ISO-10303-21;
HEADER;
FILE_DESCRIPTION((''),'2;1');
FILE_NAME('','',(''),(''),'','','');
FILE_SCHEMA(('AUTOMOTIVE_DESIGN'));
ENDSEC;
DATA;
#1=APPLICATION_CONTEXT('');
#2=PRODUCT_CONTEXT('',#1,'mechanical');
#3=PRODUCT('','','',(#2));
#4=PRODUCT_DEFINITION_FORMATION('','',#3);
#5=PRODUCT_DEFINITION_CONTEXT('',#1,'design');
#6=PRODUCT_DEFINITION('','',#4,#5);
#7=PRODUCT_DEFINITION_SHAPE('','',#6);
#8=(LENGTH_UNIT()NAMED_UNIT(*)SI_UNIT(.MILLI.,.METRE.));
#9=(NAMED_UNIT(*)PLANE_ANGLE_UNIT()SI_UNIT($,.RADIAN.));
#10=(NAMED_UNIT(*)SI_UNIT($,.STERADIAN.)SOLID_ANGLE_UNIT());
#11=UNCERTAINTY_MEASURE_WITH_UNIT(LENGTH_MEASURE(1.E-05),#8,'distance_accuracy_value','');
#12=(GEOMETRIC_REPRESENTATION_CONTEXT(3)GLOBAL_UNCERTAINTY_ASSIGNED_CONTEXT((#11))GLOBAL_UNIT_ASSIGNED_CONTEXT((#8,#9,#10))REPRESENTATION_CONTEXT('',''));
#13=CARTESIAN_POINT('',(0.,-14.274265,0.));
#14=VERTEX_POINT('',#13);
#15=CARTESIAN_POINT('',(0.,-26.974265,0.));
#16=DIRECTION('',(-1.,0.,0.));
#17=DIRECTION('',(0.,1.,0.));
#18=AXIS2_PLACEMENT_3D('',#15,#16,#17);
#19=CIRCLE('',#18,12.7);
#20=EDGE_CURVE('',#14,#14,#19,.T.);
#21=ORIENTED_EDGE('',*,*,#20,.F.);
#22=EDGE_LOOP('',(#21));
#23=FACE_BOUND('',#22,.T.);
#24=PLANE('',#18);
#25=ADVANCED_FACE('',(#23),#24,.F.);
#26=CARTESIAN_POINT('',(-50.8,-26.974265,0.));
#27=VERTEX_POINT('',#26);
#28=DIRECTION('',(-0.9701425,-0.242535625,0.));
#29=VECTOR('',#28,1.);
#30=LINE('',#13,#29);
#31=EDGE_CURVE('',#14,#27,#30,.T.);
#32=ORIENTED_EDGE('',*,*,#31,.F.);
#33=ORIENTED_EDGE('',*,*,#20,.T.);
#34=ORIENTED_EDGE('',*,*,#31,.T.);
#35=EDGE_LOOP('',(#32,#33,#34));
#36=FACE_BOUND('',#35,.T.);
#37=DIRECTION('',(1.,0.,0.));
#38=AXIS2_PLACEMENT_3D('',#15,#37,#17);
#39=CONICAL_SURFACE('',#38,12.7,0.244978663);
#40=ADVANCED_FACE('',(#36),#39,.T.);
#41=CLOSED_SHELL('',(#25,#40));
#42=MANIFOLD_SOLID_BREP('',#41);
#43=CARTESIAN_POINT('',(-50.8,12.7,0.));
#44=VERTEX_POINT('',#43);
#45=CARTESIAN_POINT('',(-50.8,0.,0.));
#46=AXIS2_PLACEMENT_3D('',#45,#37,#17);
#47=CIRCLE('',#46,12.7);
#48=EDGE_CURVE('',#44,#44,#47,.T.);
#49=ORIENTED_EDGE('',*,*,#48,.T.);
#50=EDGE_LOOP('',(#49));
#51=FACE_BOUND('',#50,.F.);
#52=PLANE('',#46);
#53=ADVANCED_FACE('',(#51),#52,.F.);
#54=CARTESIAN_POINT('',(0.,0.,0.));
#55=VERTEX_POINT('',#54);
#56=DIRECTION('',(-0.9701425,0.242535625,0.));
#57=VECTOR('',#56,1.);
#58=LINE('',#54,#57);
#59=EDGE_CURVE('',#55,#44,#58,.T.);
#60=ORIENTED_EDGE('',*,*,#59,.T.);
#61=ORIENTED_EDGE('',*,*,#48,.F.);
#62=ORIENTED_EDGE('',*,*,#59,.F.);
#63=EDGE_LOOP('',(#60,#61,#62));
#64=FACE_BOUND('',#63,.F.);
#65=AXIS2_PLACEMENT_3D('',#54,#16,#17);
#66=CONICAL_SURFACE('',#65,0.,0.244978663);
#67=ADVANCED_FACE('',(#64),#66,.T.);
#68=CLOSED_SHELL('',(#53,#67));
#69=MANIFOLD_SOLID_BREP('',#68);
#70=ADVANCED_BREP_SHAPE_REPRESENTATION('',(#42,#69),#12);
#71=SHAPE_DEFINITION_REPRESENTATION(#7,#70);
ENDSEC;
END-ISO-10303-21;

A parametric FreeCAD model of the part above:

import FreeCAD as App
import Part
import Sketcher

V = App.Vector
Q = App.Units.Quantity

doc = App.newDocument("Part")
body = doc.addObject("PartDesign::Body", "Body")

sketch1 = doc.addObject("Sketcher::SketchObject", "Sketch")
body.addObject(sketch1)
sketch1.AttachmentSupport = (doc.XY_Plane, [""])
sketch1.MapMode = "FlatFace"
sketch1.addGeometry(Part.LineSegment(V(0, 0, 0), V(-51, 13, 0)), False)
sketch1.addGeometry(Part.LineSegment(V(-51, 13, 0), V(-51, 0, 0)), False)
sketch1.addGeometry(Part.LineSegment(V(-51, 0, 0), V(0, 0, 0)), False)
sketch1.addConstraint(Sketcher.Constraint("Coincident", 0, 2, 1, 1))
sketch1.addConstraint(Sketcher.Constraint("Coincident", 1, 2, 2, 1))
sketch1.addConstraint(Sketcher.Constraint("Coincident", 2, 2, 0, 1))
sketch1.addConstraint(Sketcher.Constraint("Vertical", 1))
sketch1.addConstraint(Sketcher.Constraint("Horizontal", 2))
sketch1.addConstraint(Sketcher.Constraint("Coincident", 2, 2, -1, 1))
sketch1.addConstraint(Sketcher.Constraint("DistanceX", 2, 1, 2, 2, Q("2 in")))
sketch1.addConstraint(Sketcher.Constraint("DistanceY", 1, 2, 1, 1, Q("0.5 in")))
revolution = doc.addObject("PartDesign::Revolution", "Revolution")
body.addObject(revolution)
revolution.Profile = sketch1
revolution.ReferenceAxis = (sketch1, ["H_Axis"])
revolution.Angle = 360
body2 = doc.addObject("PartDesign::Body", "Body001")

sketch2 = doc.addObject("Sketcher::SketchObject", "Sketch001")
body2.addObject(sketch2)
sketch2.AttachmentSupport = (doc.getObject("XY_Plane001"), [""])
sketch2.MapMode = "FlatFace"
sketch2.addGeometry(Part.LineSegment(V(0, -27, 0), V(0, -14, 0)), False)
sketch2.addGeometry(Part.LineSegment(V(0, -14, 0), V(-51, -27, 0)), False)
sketch2.addGeometry(Part.LineSegment(V(-51, -27, 0), V(0, -27, 0)), False)
sketch2.addGeometry(Part.LineSegment(V(0, -27, 0), V(-51, -27, 0)), True)
sketch2.addConstraint(Sketcher.Constraint("Coincident", 0, 2, 1, 1))
sketch2.addConstraint(Sketcher.Constraint("Coincident", 1, 2, 2, 1))
sketch2.addConstraint(Sketcher.Constraint("Coincident", 2, 2, 0, 1))
sketch2.addConstraint(Sketcher.Constraint("Vertical", 0))
sketch2.addConstraint(Sketcher.Constraint("Horizontal", 2))
sketch2.addConstraint(Sketcher.Constraint("Horizontal", 3))
sketch2.addConstraint(Sketcher.Constraint("Coincident", 3, 1, 2, 2))
sketch2.addConstraint(Sketcher.Constraint("PointOnObject", 0, 2, -2))
sketch2.addConstraint(Sketcher.Constraint("Equal", 2, 3))
sketch2.addConstraint(Sketcher.Constraint("DistanceX", 2, 1, 2, 2, Q("2 in")))
sketch2.addConstraint(Sketcher.Constraint("DistanceY", 0, 1, 0, 2, Q("0.5 in")))
sketch2.addConstraint(Sketcher.Constraint("DistanceY", 0, 2, -1, 1, 14.274265))
revolution2 = doc.addObject("PartDesign::Revolution", "Revolution001")
body2.addObject(revolution2)
revolution2.Profile = sketch2
revolution2.ReferenceAxis = (sketch2, ["Axis0"])
revolution2.Angle = 360

doc.recompute()
